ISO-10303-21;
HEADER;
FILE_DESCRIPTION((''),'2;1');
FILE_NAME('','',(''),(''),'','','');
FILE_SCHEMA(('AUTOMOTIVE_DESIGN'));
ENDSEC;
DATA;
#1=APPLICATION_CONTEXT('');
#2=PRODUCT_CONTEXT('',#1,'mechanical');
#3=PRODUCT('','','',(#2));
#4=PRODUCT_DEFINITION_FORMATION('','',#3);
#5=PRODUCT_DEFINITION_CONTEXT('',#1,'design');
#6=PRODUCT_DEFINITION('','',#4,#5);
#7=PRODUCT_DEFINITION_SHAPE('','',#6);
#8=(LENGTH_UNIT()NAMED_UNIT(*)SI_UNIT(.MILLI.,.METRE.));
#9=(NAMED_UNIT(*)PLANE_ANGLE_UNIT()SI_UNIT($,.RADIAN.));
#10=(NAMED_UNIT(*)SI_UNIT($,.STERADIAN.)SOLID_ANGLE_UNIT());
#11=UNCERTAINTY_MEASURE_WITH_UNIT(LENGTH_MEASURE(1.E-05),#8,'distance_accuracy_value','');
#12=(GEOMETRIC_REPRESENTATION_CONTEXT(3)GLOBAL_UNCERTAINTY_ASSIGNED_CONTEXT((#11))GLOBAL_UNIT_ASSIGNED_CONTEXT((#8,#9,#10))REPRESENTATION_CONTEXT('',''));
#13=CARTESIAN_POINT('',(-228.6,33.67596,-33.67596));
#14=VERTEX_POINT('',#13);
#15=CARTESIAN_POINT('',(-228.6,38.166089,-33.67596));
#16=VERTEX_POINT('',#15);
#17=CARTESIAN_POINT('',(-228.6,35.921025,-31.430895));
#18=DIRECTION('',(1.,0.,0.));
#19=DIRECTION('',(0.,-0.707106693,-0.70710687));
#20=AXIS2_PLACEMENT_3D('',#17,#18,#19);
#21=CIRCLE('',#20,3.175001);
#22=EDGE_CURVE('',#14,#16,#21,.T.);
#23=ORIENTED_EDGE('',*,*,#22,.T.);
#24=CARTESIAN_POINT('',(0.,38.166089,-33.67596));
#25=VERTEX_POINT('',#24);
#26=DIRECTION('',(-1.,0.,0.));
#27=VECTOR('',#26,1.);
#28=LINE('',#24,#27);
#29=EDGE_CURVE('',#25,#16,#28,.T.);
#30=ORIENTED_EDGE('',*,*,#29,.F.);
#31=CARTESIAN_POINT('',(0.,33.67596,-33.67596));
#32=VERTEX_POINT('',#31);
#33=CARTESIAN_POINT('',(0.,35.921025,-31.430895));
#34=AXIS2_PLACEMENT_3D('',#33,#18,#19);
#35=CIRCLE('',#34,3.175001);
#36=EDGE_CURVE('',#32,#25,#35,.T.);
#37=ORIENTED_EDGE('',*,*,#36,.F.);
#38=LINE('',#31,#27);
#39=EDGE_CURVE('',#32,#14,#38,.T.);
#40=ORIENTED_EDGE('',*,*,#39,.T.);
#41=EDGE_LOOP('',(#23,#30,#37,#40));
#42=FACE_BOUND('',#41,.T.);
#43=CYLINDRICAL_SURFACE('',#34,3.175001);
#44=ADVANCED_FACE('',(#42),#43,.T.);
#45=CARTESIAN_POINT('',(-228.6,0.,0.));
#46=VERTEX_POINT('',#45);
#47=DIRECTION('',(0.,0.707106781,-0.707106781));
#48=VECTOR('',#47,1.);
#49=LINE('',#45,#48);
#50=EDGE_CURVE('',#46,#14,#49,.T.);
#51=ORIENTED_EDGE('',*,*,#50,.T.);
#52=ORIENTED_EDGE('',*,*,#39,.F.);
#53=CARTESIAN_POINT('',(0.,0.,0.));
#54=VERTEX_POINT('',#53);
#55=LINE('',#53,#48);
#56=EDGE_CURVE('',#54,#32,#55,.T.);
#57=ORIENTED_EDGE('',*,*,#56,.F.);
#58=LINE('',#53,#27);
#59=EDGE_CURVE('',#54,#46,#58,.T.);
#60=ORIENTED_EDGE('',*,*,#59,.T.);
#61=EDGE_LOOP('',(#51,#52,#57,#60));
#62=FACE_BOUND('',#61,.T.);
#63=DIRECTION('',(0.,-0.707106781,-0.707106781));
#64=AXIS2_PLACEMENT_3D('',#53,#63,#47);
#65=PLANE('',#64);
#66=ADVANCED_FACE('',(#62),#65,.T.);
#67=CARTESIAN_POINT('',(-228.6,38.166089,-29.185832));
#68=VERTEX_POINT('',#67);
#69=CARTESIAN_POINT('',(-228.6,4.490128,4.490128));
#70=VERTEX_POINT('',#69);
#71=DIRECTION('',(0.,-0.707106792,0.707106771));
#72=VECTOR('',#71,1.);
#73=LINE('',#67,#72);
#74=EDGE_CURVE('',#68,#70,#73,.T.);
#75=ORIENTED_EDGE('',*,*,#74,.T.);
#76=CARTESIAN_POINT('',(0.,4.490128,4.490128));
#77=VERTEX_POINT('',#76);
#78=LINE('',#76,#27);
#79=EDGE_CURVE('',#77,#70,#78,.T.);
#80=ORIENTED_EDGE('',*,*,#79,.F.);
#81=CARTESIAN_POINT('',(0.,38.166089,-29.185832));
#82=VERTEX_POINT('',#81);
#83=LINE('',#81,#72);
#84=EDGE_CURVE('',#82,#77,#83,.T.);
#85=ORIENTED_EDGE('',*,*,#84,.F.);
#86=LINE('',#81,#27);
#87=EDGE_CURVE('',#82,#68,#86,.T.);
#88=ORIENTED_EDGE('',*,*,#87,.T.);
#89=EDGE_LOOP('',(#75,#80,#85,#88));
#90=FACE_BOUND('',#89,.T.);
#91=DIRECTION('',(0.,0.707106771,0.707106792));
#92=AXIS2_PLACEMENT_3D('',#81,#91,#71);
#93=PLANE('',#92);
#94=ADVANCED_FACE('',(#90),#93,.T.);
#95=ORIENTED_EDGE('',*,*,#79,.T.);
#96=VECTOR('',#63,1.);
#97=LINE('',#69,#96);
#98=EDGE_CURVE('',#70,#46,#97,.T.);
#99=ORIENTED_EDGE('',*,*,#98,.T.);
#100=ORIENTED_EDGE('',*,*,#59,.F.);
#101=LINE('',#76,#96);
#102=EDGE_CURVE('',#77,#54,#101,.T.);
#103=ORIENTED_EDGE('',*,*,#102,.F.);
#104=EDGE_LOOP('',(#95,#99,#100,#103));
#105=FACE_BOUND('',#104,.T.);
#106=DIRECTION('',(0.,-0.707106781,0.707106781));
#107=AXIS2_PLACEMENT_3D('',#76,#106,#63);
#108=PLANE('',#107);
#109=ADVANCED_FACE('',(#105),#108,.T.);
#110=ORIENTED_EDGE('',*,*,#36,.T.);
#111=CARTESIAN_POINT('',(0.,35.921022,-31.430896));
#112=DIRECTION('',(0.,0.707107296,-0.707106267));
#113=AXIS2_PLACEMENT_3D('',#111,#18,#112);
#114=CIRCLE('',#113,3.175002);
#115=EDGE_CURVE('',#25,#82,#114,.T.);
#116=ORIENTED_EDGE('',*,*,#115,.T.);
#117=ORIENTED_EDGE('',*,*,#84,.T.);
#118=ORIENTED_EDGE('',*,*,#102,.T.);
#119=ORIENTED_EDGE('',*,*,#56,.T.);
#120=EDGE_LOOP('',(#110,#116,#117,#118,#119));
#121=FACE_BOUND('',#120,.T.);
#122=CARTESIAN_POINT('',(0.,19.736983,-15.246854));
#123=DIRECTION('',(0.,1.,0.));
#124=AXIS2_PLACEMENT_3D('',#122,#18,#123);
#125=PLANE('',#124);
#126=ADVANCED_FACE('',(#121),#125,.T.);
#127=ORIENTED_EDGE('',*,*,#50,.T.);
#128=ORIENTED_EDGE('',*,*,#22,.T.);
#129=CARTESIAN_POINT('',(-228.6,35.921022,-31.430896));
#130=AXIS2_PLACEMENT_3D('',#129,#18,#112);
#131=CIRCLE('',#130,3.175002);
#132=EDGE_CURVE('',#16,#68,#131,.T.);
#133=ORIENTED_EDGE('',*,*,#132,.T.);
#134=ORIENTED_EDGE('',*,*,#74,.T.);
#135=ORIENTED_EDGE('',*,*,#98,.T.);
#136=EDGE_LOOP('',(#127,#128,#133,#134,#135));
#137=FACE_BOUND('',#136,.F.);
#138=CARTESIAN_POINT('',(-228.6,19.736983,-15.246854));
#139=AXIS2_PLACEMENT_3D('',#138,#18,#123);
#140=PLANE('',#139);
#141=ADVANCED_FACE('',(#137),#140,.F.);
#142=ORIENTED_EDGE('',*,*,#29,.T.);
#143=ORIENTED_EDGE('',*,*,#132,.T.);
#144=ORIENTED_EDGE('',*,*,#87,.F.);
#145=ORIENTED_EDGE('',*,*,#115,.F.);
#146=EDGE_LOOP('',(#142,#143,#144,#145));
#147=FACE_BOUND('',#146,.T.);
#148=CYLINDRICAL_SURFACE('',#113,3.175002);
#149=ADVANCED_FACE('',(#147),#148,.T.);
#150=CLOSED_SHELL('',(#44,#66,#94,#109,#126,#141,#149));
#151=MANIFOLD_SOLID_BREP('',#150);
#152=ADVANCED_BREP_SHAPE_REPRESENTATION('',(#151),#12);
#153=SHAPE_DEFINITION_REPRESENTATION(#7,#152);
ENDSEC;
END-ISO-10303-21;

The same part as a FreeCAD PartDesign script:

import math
import FreeCAD as App
import Part
import Sketcher
Q = App.Units.Quantity

doc = App.newDocument("Part")
body = doc.addObject("PartDesign::Body", "Body")

sketch1 = body.newObject("Sketcher::SketchObject", "Sketch")
sketch1.AttachmentSupport = (doc.getObject("YZ_Plane"), [""])
sketch1.MapMode = "FlatFace"
sketch1.addGeometry([
    Part.LineSegment(App.Vector(4.5, 4.5, 0), App.Vector(0, 0, 0)),
    Part.LineSegment(App.Vector(0, 0, 0), App.Vector(33.7, -33.7, 0)),
    Part.ArcOfCircle(Part.Circle(App.Vector(35.9, -31.4, 0), App.Vector(0, 0, 1), 3.2), math.radians(-135), math.radians(-45)),
    Part.ArcOfCircle(Part.Circle(App.Vector(35.9, -31.4, 0), App.Vector(0, 0, 1), 3.2), math.radians(-45), math.radians(45)),
    Part.LineSegment(App.Vector(38.2, -29.2, 0), App.Vector(4.5, 4.5, 0)),
], False)
sketch1.addConstraint([
    Sketcher.Constraint("Coincident", 0, 2, 1, 1),
    Sketcher.Constraint("Tangent", 1, 2, 2, 1),
    Sketcher.Constraint("Tangent", 2, 2, 3, 1),
    Sketcher.Constraint("Tangent", 3, 2, 4, 1),
    Sketcher.Constraint("Coincident", 4, 2, 0, 1),
    Sketcher.Constraint("Coincident", 0, 2, -1, 1),
    Sketcher.Constraint("Equal", 2, 3),
    Sketcher.Constraint("Perpendicular", 0, 1),
    Sketcher.Constraint("Parallel", 1, 4),
    Sketcher.Constraint("Horizontal", 1, 2, 2, 2),
    Sketcher.Constraint("Angle", 0, Q("-135 deg")),
    Sketcher.Constraint("Radius", 2, Q("0.125 in")),
    Sketcher.Constraint("Distance", 1, Q("1.875 in")),
])
pad1 = body.newObject("PartDesign::Pad", "Pad")
pad1.Profile = sketch1
pad1.Length = Q("9 in")
pad1.Reversed = True

doc.recompute()
